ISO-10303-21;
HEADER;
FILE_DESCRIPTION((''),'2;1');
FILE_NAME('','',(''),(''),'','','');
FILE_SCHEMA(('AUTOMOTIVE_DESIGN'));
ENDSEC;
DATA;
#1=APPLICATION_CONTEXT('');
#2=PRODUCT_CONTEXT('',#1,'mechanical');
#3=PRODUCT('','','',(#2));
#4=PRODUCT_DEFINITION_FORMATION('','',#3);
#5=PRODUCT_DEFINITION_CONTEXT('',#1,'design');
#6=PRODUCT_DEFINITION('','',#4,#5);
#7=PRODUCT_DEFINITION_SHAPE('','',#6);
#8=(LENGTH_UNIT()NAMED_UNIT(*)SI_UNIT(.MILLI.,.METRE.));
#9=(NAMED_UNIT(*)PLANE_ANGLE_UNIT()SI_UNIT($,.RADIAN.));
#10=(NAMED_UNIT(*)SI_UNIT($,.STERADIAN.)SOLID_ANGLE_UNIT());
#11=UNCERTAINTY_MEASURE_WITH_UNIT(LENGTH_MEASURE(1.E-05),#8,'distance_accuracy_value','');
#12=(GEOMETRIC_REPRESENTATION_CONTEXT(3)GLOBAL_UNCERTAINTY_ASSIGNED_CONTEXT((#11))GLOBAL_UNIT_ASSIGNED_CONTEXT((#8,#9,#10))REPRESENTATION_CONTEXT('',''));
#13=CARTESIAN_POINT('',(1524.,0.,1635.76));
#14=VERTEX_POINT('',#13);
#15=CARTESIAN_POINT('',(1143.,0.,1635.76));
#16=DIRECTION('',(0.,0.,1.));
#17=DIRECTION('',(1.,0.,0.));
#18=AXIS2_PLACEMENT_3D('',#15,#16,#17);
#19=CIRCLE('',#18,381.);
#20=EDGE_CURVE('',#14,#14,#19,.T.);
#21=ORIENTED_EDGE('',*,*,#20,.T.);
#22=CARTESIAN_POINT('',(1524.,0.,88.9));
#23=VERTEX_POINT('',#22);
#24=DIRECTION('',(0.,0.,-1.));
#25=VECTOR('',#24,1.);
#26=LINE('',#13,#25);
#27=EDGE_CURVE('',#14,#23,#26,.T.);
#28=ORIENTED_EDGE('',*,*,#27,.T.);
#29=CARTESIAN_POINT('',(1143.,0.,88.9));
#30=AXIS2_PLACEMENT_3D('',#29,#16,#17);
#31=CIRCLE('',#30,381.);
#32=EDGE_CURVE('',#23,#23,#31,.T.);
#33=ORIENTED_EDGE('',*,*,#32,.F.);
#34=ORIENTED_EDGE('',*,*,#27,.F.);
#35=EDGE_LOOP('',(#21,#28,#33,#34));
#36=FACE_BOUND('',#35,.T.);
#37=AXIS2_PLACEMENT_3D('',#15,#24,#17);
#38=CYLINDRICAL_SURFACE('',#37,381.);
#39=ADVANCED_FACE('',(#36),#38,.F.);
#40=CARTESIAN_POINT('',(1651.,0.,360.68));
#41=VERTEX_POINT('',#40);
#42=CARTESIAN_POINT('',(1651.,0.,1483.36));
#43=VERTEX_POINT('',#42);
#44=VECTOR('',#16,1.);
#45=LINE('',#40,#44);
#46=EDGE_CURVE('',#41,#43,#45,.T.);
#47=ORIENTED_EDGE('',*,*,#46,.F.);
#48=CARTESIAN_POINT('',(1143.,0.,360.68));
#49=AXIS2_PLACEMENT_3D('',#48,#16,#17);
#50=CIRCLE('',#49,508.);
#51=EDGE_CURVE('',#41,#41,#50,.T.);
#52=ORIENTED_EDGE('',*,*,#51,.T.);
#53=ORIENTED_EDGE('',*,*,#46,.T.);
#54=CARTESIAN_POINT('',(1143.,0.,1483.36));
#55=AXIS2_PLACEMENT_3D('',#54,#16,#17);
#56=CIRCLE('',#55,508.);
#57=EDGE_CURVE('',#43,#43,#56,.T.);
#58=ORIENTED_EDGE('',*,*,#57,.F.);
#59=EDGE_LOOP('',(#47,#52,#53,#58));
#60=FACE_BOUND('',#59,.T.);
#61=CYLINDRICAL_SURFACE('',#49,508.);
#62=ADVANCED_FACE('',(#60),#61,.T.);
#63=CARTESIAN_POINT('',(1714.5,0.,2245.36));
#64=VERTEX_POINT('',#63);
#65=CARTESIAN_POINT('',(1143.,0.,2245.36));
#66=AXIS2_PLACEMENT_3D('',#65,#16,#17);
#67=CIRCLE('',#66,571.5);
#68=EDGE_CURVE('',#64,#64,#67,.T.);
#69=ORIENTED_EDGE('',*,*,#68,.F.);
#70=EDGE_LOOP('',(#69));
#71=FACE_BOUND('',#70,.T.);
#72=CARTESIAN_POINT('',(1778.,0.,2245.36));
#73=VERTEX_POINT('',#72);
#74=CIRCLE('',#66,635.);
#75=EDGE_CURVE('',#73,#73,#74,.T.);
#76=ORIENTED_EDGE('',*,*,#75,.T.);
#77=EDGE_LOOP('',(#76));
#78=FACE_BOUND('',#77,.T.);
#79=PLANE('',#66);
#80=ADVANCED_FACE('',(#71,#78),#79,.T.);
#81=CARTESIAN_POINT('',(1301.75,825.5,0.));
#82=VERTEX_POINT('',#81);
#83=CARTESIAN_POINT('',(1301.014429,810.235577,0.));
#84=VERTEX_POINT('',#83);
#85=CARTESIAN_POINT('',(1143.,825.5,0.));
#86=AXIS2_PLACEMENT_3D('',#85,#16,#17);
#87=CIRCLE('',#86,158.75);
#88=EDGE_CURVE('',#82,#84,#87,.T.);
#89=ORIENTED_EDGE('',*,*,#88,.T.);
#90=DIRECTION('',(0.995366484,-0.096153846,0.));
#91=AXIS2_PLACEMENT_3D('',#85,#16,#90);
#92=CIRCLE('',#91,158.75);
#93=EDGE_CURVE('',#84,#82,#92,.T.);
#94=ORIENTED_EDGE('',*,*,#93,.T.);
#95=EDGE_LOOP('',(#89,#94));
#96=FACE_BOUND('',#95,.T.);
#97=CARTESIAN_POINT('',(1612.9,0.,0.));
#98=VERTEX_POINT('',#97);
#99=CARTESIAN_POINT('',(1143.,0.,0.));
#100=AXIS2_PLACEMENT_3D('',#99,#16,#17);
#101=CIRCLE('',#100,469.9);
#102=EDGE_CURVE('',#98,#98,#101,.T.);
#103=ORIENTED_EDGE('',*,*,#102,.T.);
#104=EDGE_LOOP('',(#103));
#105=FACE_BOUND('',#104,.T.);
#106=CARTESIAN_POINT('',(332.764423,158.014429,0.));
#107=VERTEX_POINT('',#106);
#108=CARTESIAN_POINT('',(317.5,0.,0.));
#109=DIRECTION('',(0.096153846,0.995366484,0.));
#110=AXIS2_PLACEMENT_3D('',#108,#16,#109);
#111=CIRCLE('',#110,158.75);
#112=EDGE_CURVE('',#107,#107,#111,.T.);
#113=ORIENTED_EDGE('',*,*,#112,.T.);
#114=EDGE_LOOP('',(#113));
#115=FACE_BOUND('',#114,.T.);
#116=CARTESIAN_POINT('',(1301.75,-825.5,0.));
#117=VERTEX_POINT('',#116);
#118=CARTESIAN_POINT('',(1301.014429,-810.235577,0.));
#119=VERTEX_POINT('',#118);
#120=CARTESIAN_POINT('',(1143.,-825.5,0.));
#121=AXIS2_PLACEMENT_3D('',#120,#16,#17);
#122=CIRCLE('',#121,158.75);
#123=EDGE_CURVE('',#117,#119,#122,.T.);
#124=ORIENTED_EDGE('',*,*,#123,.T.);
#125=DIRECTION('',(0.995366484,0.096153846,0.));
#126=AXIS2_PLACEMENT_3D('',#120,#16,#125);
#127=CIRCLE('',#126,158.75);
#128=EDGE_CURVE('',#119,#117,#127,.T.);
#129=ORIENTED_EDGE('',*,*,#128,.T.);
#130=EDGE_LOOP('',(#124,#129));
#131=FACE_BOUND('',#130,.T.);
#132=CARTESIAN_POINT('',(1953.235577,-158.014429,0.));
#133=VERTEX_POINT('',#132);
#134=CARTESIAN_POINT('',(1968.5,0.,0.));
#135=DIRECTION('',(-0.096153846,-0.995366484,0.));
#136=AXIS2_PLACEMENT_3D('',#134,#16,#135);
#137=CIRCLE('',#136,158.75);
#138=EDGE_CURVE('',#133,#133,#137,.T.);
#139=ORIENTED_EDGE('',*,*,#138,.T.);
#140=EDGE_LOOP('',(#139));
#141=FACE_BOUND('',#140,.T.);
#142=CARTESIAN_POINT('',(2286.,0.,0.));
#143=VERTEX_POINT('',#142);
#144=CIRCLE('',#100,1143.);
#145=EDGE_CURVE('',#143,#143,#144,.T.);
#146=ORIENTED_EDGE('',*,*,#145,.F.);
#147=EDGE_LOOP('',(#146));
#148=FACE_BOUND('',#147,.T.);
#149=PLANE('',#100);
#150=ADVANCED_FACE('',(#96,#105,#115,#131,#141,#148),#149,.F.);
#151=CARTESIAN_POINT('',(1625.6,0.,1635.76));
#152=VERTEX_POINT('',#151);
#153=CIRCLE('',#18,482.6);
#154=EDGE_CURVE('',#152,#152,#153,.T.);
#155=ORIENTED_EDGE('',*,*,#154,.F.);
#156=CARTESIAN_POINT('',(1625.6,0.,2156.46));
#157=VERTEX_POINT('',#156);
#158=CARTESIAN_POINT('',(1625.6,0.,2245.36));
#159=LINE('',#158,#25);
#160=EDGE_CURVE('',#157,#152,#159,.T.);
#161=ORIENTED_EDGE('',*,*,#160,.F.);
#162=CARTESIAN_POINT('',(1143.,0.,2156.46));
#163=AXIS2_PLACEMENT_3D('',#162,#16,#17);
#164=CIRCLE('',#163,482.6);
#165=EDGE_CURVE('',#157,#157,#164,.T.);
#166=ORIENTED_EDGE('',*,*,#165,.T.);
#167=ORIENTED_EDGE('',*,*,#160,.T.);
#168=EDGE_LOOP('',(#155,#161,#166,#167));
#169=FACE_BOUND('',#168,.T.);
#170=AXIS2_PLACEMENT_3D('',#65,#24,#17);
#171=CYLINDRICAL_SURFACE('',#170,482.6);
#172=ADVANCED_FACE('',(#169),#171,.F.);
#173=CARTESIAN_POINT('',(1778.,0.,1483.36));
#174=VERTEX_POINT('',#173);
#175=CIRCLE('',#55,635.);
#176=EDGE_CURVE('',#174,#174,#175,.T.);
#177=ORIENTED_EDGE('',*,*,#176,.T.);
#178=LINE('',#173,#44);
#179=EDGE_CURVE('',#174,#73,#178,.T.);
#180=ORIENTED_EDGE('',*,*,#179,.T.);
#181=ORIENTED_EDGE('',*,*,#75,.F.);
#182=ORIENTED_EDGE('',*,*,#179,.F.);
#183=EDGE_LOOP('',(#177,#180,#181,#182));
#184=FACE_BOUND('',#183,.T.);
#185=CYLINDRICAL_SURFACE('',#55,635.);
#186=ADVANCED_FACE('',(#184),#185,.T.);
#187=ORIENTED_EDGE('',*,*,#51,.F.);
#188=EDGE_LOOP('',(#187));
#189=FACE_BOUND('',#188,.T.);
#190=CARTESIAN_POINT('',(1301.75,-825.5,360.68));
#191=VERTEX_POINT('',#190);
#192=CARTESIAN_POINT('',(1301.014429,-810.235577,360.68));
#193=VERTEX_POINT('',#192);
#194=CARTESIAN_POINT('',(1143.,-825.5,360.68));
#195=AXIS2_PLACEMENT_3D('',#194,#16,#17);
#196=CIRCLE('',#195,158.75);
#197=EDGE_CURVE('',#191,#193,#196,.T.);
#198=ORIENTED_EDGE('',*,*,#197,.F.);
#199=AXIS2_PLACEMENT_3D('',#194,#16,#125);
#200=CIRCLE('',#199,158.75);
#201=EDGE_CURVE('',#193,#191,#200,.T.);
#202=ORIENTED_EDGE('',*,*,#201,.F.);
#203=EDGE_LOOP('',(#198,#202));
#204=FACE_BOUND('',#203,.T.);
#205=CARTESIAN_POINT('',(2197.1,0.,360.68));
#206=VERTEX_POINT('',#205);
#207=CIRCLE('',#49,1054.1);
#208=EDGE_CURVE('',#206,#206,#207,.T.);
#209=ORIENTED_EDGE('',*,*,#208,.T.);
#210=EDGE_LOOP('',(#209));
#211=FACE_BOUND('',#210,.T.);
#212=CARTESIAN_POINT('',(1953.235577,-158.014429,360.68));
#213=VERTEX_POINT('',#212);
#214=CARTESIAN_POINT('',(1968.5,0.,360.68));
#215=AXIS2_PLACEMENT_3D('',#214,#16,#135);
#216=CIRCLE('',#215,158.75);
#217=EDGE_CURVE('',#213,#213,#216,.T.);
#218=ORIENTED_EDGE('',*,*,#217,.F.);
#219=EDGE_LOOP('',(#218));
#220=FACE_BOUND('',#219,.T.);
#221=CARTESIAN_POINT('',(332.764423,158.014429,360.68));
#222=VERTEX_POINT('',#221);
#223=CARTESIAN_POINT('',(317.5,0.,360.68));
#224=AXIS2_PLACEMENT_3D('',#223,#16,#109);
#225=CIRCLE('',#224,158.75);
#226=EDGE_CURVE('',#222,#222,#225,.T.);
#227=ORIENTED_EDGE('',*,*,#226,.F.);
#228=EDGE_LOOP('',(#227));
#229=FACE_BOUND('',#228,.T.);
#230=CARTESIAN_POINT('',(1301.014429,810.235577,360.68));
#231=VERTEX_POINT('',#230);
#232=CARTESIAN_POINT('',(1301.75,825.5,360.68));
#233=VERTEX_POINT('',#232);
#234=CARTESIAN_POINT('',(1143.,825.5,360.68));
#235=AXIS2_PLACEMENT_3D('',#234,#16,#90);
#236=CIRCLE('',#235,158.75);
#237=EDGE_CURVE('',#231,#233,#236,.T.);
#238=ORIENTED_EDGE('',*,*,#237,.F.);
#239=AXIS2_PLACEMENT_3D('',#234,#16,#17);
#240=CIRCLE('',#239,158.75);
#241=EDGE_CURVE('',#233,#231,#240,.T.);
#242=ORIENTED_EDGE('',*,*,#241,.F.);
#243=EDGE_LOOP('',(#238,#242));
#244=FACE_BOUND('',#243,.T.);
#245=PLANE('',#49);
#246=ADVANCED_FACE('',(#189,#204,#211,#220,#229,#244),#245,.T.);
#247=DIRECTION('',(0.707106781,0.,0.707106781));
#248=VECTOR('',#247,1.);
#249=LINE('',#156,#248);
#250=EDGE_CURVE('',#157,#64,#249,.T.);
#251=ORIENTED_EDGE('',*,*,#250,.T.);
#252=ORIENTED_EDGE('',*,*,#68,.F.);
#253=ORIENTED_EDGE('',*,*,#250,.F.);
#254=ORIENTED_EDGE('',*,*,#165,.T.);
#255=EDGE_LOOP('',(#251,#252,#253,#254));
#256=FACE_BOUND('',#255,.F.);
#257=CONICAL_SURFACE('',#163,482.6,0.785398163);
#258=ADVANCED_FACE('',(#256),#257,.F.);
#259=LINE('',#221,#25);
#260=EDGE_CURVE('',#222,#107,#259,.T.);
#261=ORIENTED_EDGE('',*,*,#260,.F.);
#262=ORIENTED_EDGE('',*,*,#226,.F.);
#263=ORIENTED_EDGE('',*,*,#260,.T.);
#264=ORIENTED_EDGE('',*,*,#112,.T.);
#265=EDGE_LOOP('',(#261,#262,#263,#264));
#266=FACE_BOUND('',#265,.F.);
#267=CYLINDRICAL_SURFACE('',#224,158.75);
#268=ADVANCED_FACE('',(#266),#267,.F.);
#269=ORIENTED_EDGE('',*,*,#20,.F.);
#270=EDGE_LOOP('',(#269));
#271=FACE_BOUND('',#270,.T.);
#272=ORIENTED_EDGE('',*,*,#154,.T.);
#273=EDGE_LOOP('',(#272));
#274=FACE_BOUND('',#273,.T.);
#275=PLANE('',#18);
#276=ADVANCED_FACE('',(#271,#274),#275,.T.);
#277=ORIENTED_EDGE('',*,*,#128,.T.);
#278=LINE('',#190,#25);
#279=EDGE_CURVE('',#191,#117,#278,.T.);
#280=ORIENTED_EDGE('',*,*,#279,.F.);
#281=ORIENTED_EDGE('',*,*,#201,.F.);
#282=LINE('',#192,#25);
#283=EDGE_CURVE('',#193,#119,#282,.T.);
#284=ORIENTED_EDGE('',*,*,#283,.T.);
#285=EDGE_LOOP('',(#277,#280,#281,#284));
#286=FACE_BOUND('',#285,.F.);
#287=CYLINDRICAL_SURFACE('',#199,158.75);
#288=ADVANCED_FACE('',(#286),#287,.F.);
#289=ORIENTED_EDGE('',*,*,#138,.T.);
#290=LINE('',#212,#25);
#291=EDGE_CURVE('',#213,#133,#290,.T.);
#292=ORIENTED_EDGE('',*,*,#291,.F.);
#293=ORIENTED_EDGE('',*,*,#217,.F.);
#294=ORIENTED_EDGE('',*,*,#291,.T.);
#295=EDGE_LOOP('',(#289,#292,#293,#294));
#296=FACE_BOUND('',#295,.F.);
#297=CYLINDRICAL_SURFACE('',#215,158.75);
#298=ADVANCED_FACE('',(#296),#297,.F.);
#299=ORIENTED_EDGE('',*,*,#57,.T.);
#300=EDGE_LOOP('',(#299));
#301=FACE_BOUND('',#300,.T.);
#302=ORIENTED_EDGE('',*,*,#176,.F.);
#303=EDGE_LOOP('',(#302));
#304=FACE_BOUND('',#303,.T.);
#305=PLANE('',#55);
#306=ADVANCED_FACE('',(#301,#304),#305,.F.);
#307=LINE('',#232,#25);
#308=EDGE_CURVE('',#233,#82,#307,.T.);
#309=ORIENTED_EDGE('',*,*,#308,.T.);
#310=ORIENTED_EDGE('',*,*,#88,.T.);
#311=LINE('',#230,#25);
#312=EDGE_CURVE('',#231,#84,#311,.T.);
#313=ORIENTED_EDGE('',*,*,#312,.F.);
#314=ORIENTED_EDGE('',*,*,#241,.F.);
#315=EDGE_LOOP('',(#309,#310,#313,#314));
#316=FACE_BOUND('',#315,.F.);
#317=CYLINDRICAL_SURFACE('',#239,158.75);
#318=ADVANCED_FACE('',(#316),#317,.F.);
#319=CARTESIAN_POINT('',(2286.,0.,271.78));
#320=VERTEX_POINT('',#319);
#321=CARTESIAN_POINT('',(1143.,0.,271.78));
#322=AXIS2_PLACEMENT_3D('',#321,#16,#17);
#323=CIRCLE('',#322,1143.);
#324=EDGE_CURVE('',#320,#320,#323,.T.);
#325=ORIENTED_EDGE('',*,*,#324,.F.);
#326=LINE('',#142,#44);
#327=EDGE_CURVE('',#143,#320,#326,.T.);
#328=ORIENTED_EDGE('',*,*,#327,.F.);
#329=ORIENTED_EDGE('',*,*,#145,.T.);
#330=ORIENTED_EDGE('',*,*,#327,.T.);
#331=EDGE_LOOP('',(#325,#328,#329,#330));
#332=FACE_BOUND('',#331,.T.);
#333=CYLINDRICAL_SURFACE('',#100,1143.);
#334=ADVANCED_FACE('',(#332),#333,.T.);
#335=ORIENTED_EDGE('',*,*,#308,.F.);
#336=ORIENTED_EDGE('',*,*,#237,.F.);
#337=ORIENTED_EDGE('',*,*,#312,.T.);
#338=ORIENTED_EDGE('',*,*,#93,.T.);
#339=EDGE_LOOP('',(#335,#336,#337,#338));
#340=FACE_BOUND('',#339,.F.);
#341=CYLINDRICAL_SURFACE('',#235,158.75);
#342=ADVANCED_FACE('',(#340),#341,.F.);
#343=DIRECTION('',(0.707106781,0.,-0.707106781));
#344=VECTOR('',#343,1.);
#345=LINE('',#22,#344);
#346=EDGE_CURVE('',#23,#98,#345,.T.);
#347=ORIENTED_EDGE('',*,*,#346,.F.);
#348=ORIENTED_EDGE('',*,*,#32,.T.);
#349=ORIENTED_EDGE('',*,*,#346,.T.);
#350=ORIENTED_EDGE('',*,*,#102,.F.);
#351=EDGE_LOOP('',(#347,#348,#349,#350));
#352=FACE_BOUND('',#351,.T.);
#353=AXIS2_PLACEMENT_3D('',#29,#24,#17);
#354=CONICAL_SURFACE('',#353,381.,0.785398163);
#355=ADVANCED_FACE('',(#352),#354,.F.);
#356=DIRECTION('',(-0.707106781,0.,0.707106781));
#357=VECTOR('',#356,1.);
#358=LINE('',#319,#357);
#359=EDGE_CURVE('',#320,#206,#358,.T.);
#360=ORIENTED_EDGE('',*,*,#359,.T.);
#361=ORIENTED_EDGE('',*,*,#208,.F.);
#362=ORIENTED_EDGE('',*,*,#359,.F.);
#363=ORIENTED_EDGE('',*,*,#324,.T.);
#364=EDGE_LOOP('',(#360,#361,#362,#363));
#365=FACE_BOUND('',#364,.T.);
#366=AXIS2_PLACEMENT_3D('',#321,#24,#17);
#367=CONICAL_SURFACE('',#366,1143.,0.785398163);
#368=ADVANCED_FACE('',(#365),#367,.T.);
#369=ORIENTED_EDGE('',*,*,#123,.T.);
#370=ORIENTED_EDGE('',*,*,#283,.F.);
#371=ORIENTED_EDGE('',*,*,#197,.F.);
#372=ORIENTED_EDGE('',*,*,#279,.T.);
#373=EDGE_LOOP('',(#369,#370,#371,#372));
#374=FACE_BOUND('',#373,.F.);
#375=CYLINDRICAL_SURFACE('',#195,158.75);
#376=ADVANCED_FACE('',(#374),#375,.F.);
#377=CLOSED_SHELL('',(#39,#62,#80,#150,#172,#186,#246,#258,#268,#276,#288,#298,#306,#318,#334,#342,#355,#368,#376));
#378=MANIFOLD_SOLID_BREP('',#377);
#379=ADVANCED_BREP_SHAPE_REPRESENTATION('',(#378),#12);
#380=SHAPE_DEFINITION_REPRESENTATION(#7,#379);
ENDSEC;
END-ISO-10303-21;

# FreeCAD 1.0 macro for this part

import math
import FreeCAD as App
import Part
import Sketcher
from FreeCAD import Vector
Q = App.Units.Quantity


def edges_at(feature, points):
    """Names of the edges that pass closest to the given points."""
    edges = feature.Shape.Edges
    near = lambda p: min(range(len(edges)), key=lambda i: edges[i].distToShape(Part.Vertex(*p))[0])
    return sorted({f"Edge{near(p) + 1}" for p in points})


def add_polygon(sketch, points):
    """Adds a closed chain of lines whose ends are joined by coincident constraints."""
    first, n = sketch.GeometryCount, len(points)
    for a, b in zip(points, points[1:] + points[:1]):
        sketch.addGeometry(Part.LineSegment(App.Vector(*a, 0), App.Vector(*b, 0)), False)
    for i in range(n):
        sketch.addConstraint(Sketcher.Constraint("Coincident", first + i, 2, first + (i + 1) % n, 1))

doc = App.newDocument("Part")
params = doc.addObject("Spreadsheet::Sheet", "Params")
for row, (alias, value) in enumerate([
    ("sketch1_width", "30 in"),
    ("sketch1_width2", "25 in"),
    ("sketch1_width3", "5 in"),
    ("sketch1_width4", "6 in"),
    ("sketch1_height", "24 in"),
    ("revolution_angle", "360 deg"),
    ("chamfer_size", "3.5 in"),
    ("chamfer2_size", "3.5 in"),
    ("chamfer3_size", "3.5 in"),
    ("sketch2_diameter", "12.5 in"),
], start=1):
    params.set(f"A{row}", alias)
    params.set(f"B{row}", "=" + value)
    params.setAlias(f"B{row}", alias)

body = doc.addObject("PartDesign::Body", "Body")

# Sketch on XZ plane
sketch1 = doc.addObject("Sketcher::SketchObject", "Sketch")
body.addObject(sketch1)
sketch1.AttachmentSupport = (doc.XZ_Plane, [""])
sketch1.MapMode = "FlatFace"
add_polygon(sketch1, [(1524, 1636), (1524, 0), (2286, 0), (2286, 361), (1651, 361), (1651, 1483), (1778, 1483), (1778, 2245), (1626, 2245), (1626, 1636)])  # lines 0-9
sketch1.addGeometry(Part.LineSegment(Vector(1143, 0, 0), Vector(1143, 2245, 0)), True)  # axis
sketch1.addConstraint([
    Sketcher.Constraint("Vertical", 0),
    Sketcher.Constraint("Horizontal", 1),
    Sketcher.Constraint("Vertical", 2),
    Sketcher.Constraint("Horizontal", 3),
    Sketcher.Constraint("Vertical", 4),
    Sketcher.Constraint("Horizontal", 5),
    Sketcher.Constraint("Vertical", 6),
    Sketcher.Constraint("Horizontal", 7),
    Sketcher.Constraint("Vertical", 8),
    Sketcher.Constraint("Horizontal", 9),
    Sketcher.Constraint("Vertical", 10),
    Sketcher.Constraint("PointOnObject", 0, 2, -1),
    Sketcher.Constraint("PointOnObject", 10, 1, -1),
    Sketcher.Constraint("Horizontal", 7, 2, 10, 2),
    Sketcher.Constraint("Equal", 1, 6),
    Sketcher.Constraint("DistanceX", 1, 1, 1, 2, Q("30 in")),
    Sketcher.Constraint("DistanceX", 3, 2, 3, 1, Q("25 in")),
    Sketcher.Constraint("DistanceX", 5, 1, 5, 2, Q("5 in")),
    Sketcher.Constraint("DistanceX", 7, 2, 7, 1, Q("6 in")),
    Sketcher.Constraint("DistanceY", 8, 2, 8, 1, Q("24 in")),
    Sketcher.Constraint("DistanceY", 0, 2, 0, 1, Q("64.4 in")),
    Sketcher.Constraint("DistanceY", 2, 1, 2, 2, Q("14.2 in")),
    Sketcher.Constraint("DistanceX", -1, 1, 0, 2, Q("60 in")),
    Sketcher.Constraint("DistanceX", -1, 1, 10, 1, Q("45 in")),
])
sketch1.setExpression("Constraints[25]", "Params.sketch1_width")
sketch1.setExpression("Constraints[26]", "Params.sketch1_width2")
sketch1.setExpression("Constraints[27]", "Params.sketch1_width3")
sketch1.setExpression("Constraints[28]", "Params.sketch1_width4")
sketch1.setExpression("Constraints[29]", "Params.sketch1_height")
revolution = doc.addObject("PartDesign::Revolution", "Revolution")
body.addObject(revolution)
revolution.Profile = sketch1
revolution.ReferenceAxis = (sketch1, ["Axis0"])
revolution.setExpression("Angle", "Params.revolution_angle")
doc.recompute()

chamfer = doc.addObject("PartDesign::Chamfer", "Chamfer")
body.addObject(chamfer)
chamfer.Base = (revolution, edges_at(revolution, [(762, 0, 0)]))
chamfer.setExpression("Size", "Params.chamfer_size")
doc.recompute()

chamfer2 = doc.addObject("PartDesign::Chamfer", "Chamfer001")
body.addObject(chamfer2)
chamfer2.Base = (chamfer, edges_at(chamfer, [(0, 0, 360.68)]))
chamfer2.setExpression("Size", "Params.chamfer2_size")
doc.recompute()

chamfer3 = doc.addObject("PartDesign::Chamfer", "Chamfer002")
body.addObject(chamfer3)
chamfer3.Base = (chamfer2, edges_at(chamfer2, [(660.4, 0, 2245.36)]))
chamfer3.setExpression("Size", "Params.chamfer3_size")

# Sketch on XY plane
sketch2 = doc.addObject("Sketcher::SketchObject", "Sketch001")
body.addObject(sketch2)
sketch2.AttachmentSupport = (doc.XY_Plane, [""])
sketch2.MapMode = "FlatFace"
sketch2.AttachmentOffset = App.Placement(Vector(0, 0, 14.2 * 25.4), App.Rotation())
sketch2.addGeometry([
    Part.ArcOfCircle(Part.Circle(Vector(1143, 825, 0), Vector(0, 0, 1), 159), math.radians(-5.52), math.radians(0)),  # 0
    Part.ArcOfCircle(Part.Circle(Vector(1143, 826, 0), Vector(0, 0, 1), 159), math.radians(0), math.radians(354)),  # 1
    Part.Circle(Vector(1968, 0, 0), Vector(0, 0, 1), 159),  # 2
    Part.ArcOfCircle(Part.Circle(Vector(1143, -826, 0), Vector(0, 0, 1), 159), math.radians(6), math.radians(360)),  # 3
    Part.ArcOfCircle(Part.Circle(Vector(1143, -825, 0), Vector(0, 0, 1), 159), math.radians(0), math.radians(5.52)),  # 4
    Part.Circle(Vector(318, 0, 0), Vector(0, 0, 1), 159),  # 5
], False)
sketch2.addConstraint([
    Sketcher.Constraint("Tangent", 0, 1, 1, 2),
    Sketcher.Constraint("Coincident", 1, 1, 0, 2),
    Sketcher.Constraint("Tangent", 3, 1, 4, 2),
    Sketcher.Constraint("Coincident", 4, 1, 3, 2),
    Sketcher.Constraint("Equal", 1, 2),
    Sketcher.Constraint("Equal", 2, 3),
    Sketcher.Constraint("Equal", 4, 5),
    Sketcher.Constraint("Symmetric", 0, 3, 3, 3, -1),
    Sketcher.Constraint("PointOnObject", 2, 3, -1),
    Sketcher.Constraint("PointOnObject", 5, 3, -1),
    Sketcher.Constraint("Horizontal", 0, 3, 1, 1),
    Sketcher.Constraint("Horizontal", 3, 3, 4, 1),
    Sketcher.Constraint("Vertical", 0, 1, 3, 1),
    Sketcher.Constraint("Diameter", 2, Q("12.5 in")),
    Sketcher.Constraint("DistanceX", -1, 1, 0, 3, Q("45 in")),
    Sketcher.Constraint("DistanceY", 3, 3, 0, 3, Q("65 in")),
    Sketcher.Constraint("DistanceX", 5, 3, 2, 3, Q("65 in")),
    Sketcher.Constraint("DistanceX", -1, 1, 2, 3, Q("77.5 in")),
    Sketcher.Constraint("DistanceX", -1, 1, 0, 1, 1301.014429),
])
sketch2.setExpression("Constraints[13]", "Params.sketch2_diameter")
pocket1 = doc.addObject("PartDesign::Pocket", "Pocket")
body.addObject(pocket1)
pocket1.Profile = sketch2
pocket1.Type = "ThroughAll"

doc.recompute()
